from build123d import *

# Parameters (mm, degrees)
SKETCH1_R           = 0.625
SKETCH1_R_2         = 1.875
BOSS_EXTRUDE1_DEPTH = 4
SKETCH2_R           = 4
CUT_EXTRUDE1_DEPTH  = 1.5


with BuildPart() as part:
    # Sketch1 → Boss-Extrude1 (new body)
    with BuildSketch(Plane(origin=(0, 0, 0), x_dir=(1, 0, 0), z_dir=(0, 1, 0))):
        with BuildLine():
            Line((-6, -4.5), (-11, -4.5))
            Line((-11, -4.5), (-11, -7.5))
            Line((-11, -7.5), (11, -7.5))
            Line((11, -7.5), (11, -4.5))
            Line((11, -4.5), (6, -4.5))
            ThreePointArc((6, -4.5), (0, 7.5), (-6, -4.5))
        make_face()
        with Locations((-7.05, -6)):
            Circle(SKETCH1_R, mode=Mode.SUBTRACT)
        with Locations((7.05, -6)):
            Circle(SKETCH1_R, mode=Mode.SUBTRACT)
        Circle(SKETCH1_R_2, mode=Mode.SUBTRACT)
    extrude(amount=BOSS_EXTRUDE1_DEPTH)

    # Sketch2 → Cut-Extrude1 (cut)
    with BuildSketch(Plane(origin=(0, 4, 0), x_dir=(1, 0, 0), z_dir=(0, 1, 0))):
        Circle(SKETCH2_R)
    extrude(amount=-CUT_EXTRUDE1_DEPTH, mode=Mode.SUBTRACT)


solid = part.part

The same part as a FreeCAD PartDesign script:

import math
import FreeCAD as App
import Part
import Sketcher

doc = App.newDocument("Part")
body = doc.addObject("PartDesign::Body", "Body")

# Sketch on XZ plane
sketch1 = body.newObject("Sketcher::SketchObject", "Sketch")
sketch1.AttachmentSupport = (doc.getObject("XZ_Plane"), [""])
sketch1.MapMode = "FlatFace"
sketch1.addGeometry([
    Part.LineSegment(App.Vector(-6, 4.5, 0), App.Vector(-11, 4.5, 0)),  # 0
    Part.LineSegment(App.Vector(-11, 4.5, 0), App.Vector(-11, 7.5, 0)),  # 1
    Part.LineSegment(App.Vector(-11, 7.5, 0), App.Vector(11, 7.5, 0)),  # 2
    Part.LineSegment(App.Vector(11, 7.5, 0), App.Vector(11, 4.5, 0)),  # 3
    Part.LineSegment(App.Vector(11, 4.5, 0), App.Vector(6, 4.5, 0)),  # 4
    Part.ArcOfCircle(Part.Circle(App.Vector(0, 0, 0), App.Vector(0, 0, 1), 7.5), math.radians(143), math.radians(397)),  # 5
    Part.Circle(App.Vector(-7, 6, 0), App.Vector(0, 0, 1), 0.6),  # 6
    Part.Circle(App.Vector(7, 6, 0), App.Vector(0, 0, 1), 0.6),  # 7
    Part.Circle(App.Vector(0, 0, 0), App.Vector(0, 0, 1), 1.9),  # 8
], False)
sketch1.addConstraint([
    Sketcher.Constraint("Coincident", 0, 2, 1, 1),
    Sketcher.Constraint("Coincident", 1, 2, 2, 1),
    Sketcher.Constraint("Coincident", 2, 2, 3, 1),
    Sketcher.Constraint("Coincident", 3, 2, 4, 1),
    Sketcher.Constraint("Coincident", 4, 2, 5, 2),
    Sketcher.Constraint("Coincident", 5, 1, 0, 1),
    Sketcher.Constraint("Horizontal", 0),
    Sketcher.Constraint("Vertical", 1),
    Sketcher.Constraint("Horizontal", 2),
    Sketcher.Constraint("Vertical", 3),
    Sketcher.Constraint("Horizontal", 4),
    Sketcher.Constraint("Coincident", 5, 3, -1, 1),
    Sketcher.Constraint("Coincident", 8, 3, -1, 1),
    Sketcher.Constraint("Equal", 6, 7),
    Sketcher.Constraint("Symmetric", 6, 3, 7, 3, -2),
    Sketcher.Constraint("Symmetric", 0, 2, 3, 2, -2),
    Sketcher.Constraint("Radius", 5, 7.5),
    Sketcher.Constraint("Diameter", 6, 1.25),
    Sketcher.Constraint("Diameter", 8, 3.75),
    Sketcher.Constraint("DistanceX", 0, 2, 0, 1, 5.0),
    Sketcher.Constraint("DistanceX", 2, 1, 2, 2, 22.0),
    Sketcher.Constraint("DistanceY", 1, 1, 1, 2, 3.0),
    Sketcher.Constraint("DistanceY", -1, 1, 6, 3, 6.0),
    Sketcher.Constraint("DistanceX", 6, 3, 7, 3, 14.1),
])
pad1 = body.newObject("PartDesign::Pad", "Pad")
pad1.Profile = sketch1
pad1.Length = 4
pad1.Reversed = True

# Sketch on XZ plane
sketch2 = body.newObject("Sketcher::SketchObject", "Sketch001")
sketch2.AttachmentSupport = (doc.getObject("XZ_Plane"), [""])
sketch2.MapMode = "FlatFace"
sketch2.AttachmentOffset = App.Placement(App.Vector(0, 0, -4), App.Rotation())
sketch2.addGeometry(Part.Circle(App.Vector(0, 0, 0), App.Vector(0, 0, 1), 4), False)
sketch2.addConstraint([
    Sketcher.Constraint("Coincident", 0, 3, -1, 1),
    Sketcher.Constraint("Diameter", 0, 8.0),
])
pocket1 = body.newObject("PartDesign::Pocket", "Pocket")
pocket1.Profile = sketch2
pocket1.Length = 1.5
pocket1.Reversed = True

doc.recompute()
